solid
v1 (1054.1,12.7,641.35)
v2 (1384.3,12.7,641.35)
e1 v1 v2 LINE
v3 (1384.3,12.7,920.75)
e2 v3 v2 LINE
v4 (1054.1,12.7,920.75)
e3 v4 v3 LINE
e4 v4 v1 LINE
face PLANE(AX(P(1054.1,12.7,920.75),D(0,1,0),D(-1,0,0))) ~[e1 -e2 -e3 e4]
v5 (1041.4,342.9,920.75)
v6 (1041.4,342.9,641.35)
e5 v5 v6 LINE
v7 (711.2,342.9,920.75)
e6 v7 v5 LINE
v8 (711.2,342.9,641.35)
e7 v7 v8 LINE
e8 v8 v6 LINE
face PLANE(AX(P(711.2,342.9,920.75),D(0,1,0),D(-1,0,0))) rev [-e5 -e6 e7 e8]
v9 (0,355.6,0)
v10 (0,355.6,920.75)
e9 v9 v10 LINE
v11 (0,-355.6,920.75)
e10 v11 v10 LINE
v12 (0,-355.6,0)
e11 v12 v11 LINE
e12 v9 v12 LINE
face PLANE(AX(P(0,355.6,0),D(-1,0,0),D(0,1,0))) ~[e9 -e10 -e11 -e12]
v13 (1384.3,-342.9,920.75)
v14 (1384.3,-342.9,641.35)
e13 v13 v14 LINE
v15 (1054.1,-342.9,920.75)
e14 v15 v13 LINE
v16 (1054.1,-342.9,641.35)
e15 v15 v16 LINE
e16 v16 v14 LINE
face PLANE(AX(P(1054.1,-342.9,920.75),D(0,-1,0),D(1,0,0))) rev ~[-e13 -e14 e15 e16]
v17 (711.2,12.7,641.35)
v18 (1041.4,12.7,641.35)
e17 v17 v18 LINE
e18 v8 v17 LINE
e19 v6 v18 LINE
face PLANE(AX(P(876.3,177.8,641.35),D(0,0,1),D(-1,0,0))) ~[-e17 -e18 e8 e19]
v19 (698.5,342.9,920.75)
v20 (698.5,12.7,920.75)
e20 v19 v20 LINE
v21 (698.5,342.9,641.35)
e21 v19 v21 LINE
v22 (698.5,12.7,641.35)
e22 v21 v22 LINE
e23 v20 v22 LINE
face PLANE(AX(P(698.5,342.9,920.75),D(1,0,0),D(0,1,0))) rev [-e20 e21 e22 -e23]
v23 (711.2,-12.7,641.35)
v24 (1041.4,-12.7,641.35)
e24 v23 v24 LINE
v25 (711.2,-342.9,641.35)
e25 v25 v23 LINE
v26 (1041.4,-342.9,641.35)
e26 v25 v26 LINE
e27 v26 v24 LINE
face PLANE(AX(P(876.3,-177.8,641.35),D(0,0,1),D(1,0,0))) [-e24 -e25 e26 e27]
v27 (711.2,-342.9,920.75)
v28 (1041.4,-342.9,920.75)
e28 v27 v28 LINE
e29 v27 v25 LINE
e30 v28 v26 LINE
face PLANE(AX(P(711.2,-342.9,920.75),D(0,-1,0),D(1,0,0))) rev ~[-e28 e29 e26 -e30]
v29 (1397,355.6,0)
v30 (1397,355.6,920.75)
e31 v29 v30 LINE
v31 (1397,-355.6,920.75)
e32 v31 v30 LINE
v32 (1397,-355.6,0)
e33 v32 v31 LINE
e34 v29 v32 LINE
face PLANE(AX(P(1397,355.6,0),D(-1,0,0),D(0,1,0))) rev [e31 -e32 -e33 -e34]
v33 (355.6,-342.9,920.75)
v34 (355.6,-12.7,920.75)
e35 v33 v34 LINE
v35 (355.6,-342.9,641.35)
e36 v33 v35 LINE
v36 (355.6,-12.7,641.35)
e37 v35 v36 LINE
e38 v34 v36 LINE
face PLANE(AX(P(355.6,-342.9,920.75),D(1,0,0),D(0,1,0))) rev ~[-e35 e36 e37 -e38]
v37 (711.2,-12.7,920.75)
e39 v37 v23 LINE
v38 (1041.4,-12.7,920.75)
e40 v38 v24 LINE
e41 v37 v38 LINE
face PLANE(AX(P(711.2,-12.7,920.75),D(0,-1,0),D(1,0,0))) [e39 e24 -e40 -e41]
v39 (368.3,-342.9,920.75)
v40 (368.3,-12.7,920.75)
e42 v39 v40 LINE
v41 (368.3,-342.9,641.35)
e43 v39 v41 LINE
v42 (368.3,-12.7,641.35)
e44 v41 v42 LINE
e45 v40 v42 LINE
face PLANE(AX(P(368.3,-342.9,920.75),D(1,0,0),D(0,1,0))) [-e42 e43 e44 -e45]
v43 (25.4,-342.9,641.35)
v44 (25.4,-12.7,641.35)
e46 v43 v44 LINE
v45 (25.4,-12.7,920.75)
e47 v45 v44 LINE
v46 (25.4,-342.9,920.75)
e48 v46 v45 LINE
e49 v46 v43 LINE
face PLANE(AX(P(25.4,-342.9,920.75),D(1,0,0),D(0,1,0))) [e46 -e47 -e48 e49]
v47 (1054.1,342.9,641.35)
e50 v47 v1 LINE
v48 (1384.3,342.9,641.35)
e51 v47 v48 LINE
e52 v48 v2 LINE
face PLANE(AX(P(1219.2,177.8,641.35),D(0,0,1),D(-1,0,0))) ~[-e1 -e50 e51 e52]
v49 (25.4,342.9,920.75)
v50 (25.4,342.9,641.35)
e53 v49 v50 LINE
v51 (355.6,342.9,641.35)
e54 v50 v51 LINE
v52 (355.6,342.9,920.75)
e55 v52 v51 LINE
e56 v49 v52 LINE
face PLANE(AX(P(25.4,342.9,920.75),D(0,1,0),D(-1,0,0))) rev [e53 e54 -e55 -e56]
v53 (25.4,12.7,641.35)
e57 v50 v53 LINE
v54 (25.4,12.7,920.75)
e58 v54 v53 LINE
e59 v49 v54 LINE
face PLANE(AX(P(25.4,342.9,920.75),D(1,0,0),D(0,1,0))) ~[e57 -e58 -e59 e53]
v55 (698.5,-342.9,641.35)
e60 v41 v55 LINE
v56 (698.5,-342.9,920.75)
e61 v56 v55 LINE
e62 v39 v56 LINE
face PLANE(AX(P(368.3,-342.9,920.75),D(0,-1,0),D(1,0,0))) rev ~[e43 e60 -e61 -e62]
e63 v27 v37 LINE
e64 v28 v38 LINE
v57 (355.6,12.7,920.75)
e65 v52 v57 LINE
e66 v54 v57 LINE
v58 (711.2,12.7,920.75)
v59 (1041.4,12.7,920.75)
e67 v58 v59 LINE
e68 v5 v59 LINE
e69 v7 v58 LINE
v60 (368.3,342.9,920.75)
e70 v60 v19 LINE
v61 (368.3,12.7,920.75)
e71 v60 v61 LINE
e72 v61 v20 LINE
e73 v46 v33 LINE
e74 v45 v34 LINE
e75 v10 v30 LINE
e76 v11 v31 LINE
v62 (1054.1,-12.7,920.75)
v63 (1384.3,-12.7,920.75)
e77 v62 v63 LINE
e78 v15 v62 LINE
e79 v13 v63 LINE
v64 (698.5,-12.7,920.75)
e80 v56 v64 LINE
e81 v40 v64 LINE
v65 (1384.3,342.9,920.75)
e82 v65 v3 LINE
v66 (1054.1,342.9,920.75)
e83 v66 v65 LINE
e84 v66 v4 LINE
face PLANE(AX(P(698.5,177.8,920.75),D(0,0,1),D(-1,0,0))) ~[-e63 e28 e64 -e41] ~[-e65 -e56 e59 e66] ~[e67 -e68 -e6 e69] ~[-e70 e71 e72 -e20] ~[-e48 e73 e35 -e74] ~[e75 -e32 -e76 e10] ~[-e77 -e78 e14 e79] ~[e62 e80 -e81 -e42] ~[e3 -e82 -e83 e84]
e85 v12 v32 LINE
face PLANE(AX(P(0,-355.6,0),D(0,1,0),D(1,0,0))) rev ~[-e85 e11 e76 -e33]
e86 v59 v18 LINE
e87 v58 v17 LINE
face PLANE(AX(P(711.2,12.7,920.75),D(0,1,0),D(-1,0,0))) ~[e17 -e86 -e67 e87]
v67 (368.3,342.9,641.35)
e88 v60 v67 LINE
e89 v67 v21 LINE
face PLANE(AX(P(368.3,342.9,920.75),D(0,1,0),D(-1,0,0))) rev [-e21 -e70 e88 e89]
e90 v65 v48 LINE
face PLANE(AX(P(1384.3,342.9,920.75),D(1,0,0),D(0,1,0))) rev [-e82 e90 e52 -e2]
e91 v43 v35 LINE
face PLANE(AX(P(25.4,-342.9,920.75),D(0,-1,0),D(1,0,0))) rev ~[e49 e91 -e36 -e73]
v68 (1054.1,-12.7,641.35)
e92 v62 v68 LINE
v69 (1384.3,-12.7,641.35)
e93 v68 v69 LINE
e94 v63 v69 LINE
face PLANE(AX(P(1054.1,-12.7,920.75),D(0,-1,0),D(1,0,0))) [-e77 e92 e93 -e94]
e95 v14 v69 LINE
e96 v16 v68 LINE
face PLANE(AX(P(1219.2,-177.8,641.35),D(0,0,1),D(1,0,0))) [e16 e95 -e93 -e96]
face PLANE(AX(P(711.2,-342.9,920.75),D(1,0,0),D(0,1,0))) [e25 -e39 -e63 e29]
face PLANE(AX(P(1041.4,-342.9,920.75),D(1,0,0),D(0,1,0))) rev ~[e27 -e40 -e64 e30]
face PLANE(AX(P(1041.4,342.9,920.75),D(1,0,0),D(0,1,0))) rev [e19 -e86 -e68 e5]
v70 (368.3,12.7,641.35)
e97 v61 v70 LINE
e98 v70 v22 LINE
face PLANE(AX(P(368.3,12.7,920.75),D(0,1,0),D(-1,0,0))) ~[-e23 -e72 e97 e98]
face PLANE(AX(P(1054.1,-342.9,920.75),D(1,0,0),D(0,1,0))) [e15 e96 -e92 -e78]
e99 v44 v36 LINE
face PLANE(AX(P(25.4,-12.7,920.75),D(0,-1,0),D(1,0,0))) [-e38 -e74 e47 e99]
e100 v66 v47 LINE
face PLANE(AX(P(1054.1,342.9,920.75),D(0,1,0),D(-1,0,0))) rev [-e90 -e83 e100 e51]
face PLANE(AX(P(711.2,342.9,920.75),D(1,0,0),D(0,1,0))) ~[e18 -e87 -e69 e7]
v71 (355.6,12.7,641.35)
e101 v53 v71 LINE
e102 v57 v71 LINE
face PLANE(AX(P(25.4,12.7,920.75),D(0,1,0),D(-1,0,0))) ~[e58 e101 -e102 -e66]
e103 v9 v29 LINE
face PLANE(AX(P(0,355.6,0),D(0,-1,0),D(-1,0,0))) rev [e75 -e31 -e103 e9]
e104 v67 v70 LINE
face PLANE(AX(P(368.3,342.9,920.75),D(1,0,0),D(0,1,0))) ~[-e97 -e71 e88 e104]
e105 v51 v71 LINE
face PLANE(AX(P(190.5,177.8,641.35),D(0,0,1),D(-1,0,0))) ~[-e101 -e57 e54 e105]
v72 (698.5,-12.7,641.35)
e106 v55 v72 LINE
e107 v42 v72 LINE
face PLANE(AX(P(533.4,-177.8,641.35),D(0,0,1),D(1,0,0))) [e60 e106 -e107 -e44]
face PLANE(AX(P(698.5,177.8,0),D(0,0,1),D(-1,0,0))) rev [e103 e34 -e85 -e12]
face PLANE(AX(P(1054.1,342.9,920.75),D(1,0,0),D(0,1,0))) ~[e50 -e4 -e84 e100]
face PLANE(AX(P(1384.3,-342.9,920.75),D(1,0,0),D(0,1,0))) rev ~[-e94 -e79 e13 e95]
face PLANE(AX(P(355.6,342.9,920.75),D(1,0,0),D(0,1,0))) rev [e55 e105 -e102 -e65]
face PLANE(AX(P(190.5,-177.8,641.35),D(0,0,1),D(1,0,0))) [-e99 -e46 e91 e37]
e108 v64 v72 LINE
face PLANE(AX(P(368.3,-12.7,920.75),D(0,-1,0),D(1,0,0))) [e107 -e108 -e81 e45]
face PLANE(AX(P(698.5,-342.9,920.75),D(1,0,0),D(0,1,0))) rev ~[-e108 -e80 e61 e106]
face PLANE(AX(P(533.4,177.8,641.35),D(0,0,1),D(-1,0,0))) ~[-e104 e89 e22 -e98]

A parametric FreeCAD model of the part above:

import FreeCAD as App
import Part
import Sketcher
Q = App.Units.Quantity


def add_polygon(sketch, points):
    """Adds a closed chain of lines whose ends are joined by coincident constraints."""
    first, n = sketch.GeometryCount, len(points)
    for a, b in zip(points, points[1:] + points[:1]):
        sketch.addGeometry(Part.LineSegment(App.Vector(*a, 0), App.Vector(*b, 0)), False)
    for i in range(n):
        sketch.addConstraint(Sketcher.Constraint("Coincident", first + i, 2, first + (i + 1) % n, 1))

doc = App.newDocument("Part")
body = doc.addObject("PartDesign::Body", "Body")

# Sketch on XY plane
sketch1 = body.newObject("Sketcher::SketchObject", "Sketch")
sketch1.AttachmentSupport = (doc.getObject("XY_Plane"), [""])
sketch1.MapMode = "FlatFace"
add_polygon(sketch1, [(0, 0), (0, -356), (1397, -356), (1397, 0)])  # lines 0-3
sketch1.addConstraint(Sketcher.Constraint("Vertical", 0))
sketch1.addConstraint(Sketcher.Constraint("Horizontal", 1))
sketch1.addConstraint(Sketcher.Constraint("Vertical", 2))
sketch1.addConstraint(Sketcher.Constraint("Horizontal", 3))
sketch1.addConstraint(Sketcher.Constraint("Coincident", 3, 2, -1, 1))
sketch1.addConstraint(Sketcher.Constraint("DistanceX", 1, 1, 1, 2, Q("55 in")))
sketch1.addConstraint(Sketcher.Constraint("DistanceY", 0, 2, 0, 1, Q("14 in")))
pad1 = body.newObject("PartDesign::Pad", "Pad")
pad1.Profile = sketch1
pad1.Length = Q("36.25 in")

# Sketch on XY plane
sketch2 = body.newObject("Sketcher::SketchObject", "Sketch001")
sketch2.AttachmentSupport = (doc.getObject("XY_Plane"), [""])
sketch2.MapMode = "FlatFace"
sketch2.AttachmentOffset = App.Placement(App.Vector(0, 0, 36.25 * 25.4), App.Rotation())
add_polygon(sketch2, [(25, -13), (25, -343), (356, -343), (356, -13)])  # lines 0-3
sketch2.addConstraint(Sketcher.Constraint("Vertical", 0))
sketch2.addConstraint(Sketcher.Constraint("Horizontal", 1))
sketch2.addConstraint(Sketcher.Constraint("Vertical", 2))
sketch2.addConstraint(Sketcher.Constraint("Horizontal", 3))
sketch2.addConstraint(Sketcher.Constraint("Equal", 3, 0))
sketch2.addConstraint(Sketcher.Constraint("DistanceX", 1, 1, 1, 2, Q("13 in")))
sketch2.addConstraint(Sketcher.Constraint("DistanceX", -1, 1, 0, 2, Q("1 in")))
sketch2.addConstraint(Sketcher.Constraint("DistanceY", 0, 2, -1, 1, Q("13.5 in")))
pocket1 = body.newObject("PartDesign::Pocket", "Pocket")
pocket1.Profile = sketch2
pocket1.Length = Q("11 in")

# Sketch on XY plane
sketch3 = body.newObject("Sketcher::SketchObject", "Sketch002")
sketch3.AttachmentSupport = (doc.getObject("XY_Plane"), [""])
sketch3.MapMode = "FlatFace"
sketch3.AttachmentOffset = App.Placement(App.Vector(0, 0, 36.25 * 25.4), App.Rotation())
add_polygon(sketch3, [(368, -13), (368, -343), (698, -343), (698, -13)])  # lines 0-3
sketch3.addConstraint(Sketcher.Constraint("Vertical", 0))
sketch3.addConstraint(Sketcher.Constraint("Horizontal", 1))
sketch3.addConstraint(Sketcher.Constraint("Vertical", 2))
sketch3.addConstraint(Sketcher.Constraint("Horizontal", 3))
sketch3.addConstraint(Sketcher.Constraint("Equal", 3, 0))
sketch3.addConstraint(Sketcher.Constraint("DistanceX", 1, 1, 1, 2, Q("13 in")))
sketch3.addConstraint(Sketcher.Constraint("DistanceX", -1, 1, 0, 2, Q("14.5 in")))
sketch3.addConstraint(Sketcher.Constraint("DistanceY", 0, 2, -1, 1, Q("13.5 in")))
pocket2 = body.newObject("PartDesign::Pocket", "Pocket001")
pocket2.Profile = sketch3
pocket2.Length = Q("11 in")

# Sketch on XY plane
sketch4 = body.newObject("Sketcher::SketchObject", "Sketch003")
sketch4.AttachmentSupport = (doc.getObject("XY_Plane"), [""])
sketch4.MapMode = "FlatFace"
sketch4.AttachmentOffset = App.Placement(App.Vector(0, 0, 36.25 * 25.4), App.Rotation())
add_polygon(sketch4, [(711, -13), (711, -343), (1041, -343), (1041, -13)])  # lines 0-3
sketch4.addConstraint(Sketcher.Constraint("Vertical", 0))
sketch4.addConstraint(Sketcher.Constraint("Horizontal", 1))
sketch4.addConstraint(Sketcher.Constraint("Vertical", 2))
sketch4.addConstraint(Sketcher.Constraint("Horizontal", 3))
sketch4.addConstraint(Sketcher.Constraint("Equal", 3, 0))
sketch4.addConstraint(Sketcher.Constraint("DistanceX", 1, 1, 1, 2, Q("13 in")))
sketch4.addConstraint(Sketcher.Constraint("DistanceX", -1, 1, 0, 2, Q("28 in")))
sketch4.addConstraint(Sketcher.Constraint("DistanceY", 0, 2, -1, 1, Q("13.5 in")))
pocket3 = body.newObject("PartDesign::Pocket", "Pocket002")
pocket3.Profile = sketch4
pocket3.Length = Q("11 in")

# Sketch on XY plane
sketch5 = body.newObject("Sketcher::SketchObject", "Sketch004")
sketch5.AttachmentSupport = (doc.getObject("XY_Plane"), [""])
sketch5.MapMode = "FlatFace"
sketch5.AttachmentOffset = App.Placement(App.Vector(0, 0, 36.25 * 25.4), App.Rotation())
add_polygon(sketch5, [(1054, -13), (1054, -343), (1384, -343), (1384, -13)])  # lines 0-3
sketch5.addConstraint(Sketcher.Constraint("Vertical", 0))
sketch5.addConstraint(Sketcher.Constraint("Horizontal", 1))
sketch5.addConstraint(Sketcher.Constraint("Vertical", 2))
sketch5.addConstraint(Sketcher.Constraint("Horizontal", 3))
sketch5.addConstraint(Sketcher.Constraint("Equal", 3, 0))
sketch5.addConstraint(Sketcher.Constraint("DistanceX", 1, 1, 1, 2, Q("13 in")))
sketch5.addConstraint(Sketcher.Constraint("DistanceX", -1, 1, 0, 2, Q("41.5 in")))
sketch5.addConstraint(Sketcher.Constraint("DistanceY", 0, 2, -1, 1, Q("13.5 in")))
pocket4 = body.newObject("PartDesign::Pocket", "Pocket003")
pocket4.Profile = sketch5
pocket4.Length = Q("11 in")
body2 = doc.addObject("PartDesign::Body", "Body001")
doc.recompute()

body2.BaseFeature = body
doc.recompute()

mirroring = doc.addObject("Part::Mirroring", "Mirroring")
mirroring.Source = body
mirroring.Base = App.Vector(0, 0, 0)
mirroring.Normal = App.Vector(0, -1, 0)
body3 = doc.addObject("PartDesign::Body", "Body002")
body3.BaseFeature = mirroring
boolean = body2.newObject("PartDesign::Boolean", "Boolean")
boolean.Type = "Fuse"
boolean.addObjects([body3])
doc.recompute()
mirroring.Visibility = False

doc.recompute()
